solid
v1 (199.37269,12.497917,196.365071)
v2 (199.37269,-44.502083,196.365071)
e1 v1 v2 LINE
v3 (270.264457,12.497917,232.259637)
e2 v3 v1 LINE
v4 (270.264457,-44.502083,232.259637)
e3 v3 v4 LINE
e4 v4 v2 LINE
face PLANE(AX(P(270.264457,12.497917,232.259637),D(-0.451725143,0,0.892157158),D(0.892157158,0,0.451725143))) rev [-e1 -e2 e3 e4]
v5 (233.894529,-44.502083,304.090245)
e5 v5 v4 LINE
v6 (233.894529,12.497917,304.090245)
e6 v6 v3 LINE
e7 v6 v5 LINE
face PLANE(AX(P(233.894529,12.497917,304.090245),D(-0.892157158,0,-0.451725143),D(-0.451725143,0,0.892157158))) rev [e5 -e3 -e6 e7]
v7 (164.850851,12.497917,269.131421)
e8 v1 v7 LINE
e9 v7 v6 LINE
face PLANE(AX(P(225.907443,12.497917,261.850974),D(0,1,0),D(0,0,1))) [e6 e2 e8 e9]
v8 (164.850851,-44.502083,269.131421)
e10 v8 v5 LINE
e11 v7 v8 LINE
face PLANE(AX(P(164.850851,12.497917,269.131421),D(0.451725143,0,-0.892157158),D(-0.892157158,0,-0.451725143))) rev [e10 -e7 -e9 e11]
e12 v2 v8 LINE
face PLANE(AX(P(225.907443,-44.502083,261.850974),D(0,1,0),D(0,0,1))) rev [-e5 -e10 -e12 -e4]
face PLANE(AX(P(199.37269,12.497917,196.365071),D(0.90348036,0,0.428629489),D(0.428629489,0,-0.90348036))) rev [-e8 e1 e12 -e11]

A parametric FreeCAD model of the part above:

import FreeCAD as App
import Part
import Sketcher

doc = App.newDocument("Part")
body = doc.addObject("PartDesign::Body", "Body")

sketch1 = body.newObject("Sketcher::SketchObject", "Sketch")
sketch1.AttachmentSupport = (doc.getObject("XZ_Plane"), [""])
sketch1.MapMode = "FlatFace"
sketch1.addGeometry([
    Part.LineSegment(App.Vector(-61, 7, 0), App.Vector(8, 42, 0)),
    Part.LineSegment(App.Vector(8, 42, 0), App.Vector(44, -30, 0)),
    Part.LineSegment(App.Vector(44, -30, 0), App.Vector(-27, -65, 0)),
    Part.LineSegment(App.Vector(-27, -65, 0), App.Vector(-61, 7, 0)),
], False)
sketch1.addConstraint([
    Sketcher.Constraint("Coincident", 0, 2, 1, 1),
    Sketcher.Constraint("Coincident", 1, 2, 2, 1),
    Sketcher.Constraint("Coincident", 2, 2, 3, 1),
    Sketcher.Constraint("Coincident", 3, 2, 0, 1),
    Sketcher.Constraint("Perpendicular", 0, 1),
    Sketcher.Constraint("Perpendicular", 1, 2),
    Sketcher.Constraint("Distance", 0, 77.389591),
    Sketcher.Constraint("DistanceY", -1, 1, 0, 2, 42.239271),
    Sketcher.Constraint("DistanceX", 3, 2, -1, 1, 61.056591),
    Sketcher.Constraint("DistanceX", 0, 2, 1, 2, 36.369928),
    Sketcher.Constraint("DistanceY", 1, 2, 0, 2, 71.830608),
    Sketcher.Constraint("DistanceX", 2, 2, 0, 2, 34.521839),
])
pad1 = body.newObject("PartDesign::Pad", "Pad")
pad1.Profile = sketch1
pad1.Length = 57
pad1.Reversed = True
body2 = doc.addObject("PartDesign::Body", "Body001")
doc.recompute()

body.Placement = App.Placement(App.Vector(225.907443, -44.502083, 261.850974), App.Rotation(App.Vector(0, 0, 1), 0))
boolean = body2.newObject("PartDesign::Boolean", "Boolean")
boolean.Type = "Fuse"
boolean.addObjects([body])

doc.recompute()
